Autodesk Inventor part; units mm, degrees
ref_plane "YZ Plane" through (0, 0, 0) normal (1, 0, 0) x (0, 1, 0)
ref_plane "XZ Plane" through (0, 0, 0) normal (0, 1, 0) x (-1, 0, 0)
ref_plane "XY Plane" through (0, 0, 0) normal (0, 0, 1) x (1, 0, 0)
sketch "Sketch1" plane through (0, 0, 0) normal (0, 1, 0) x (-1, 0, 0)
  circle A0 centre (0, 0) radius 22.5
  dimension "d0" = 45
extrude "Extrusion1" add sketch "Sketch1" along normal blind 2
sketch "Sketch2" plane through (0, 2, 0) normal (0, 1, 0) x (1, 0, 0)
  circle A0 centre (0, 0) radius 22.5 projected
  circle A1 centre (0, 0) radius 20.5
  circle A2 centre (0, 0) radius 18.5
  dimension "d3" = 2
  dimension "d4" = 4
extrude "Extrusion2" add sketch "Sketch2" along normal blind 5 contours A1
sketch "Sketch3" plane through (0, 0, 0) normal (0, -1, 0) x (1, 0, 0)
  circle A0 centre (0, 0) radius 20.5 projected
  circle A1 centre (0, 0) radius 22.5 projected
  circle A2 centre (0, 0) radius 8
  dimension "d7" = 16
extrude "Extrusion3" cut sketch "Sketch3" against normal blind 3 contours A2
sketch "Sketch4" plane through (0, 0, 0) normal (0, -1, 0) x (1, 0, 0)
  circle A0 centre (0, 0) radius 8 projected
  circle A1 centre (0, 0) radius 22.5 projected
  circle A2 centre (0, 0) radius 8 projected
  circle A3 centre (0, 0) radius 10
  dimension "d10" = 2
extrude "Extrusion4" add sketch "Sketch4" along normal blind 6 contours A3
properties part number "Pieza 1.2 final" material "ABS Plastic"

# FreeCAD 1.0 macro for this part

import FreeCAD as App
import Part
import Sketcher
from FreeCAD import Vector
Q = App.Units.Quantity

doc = App.newDocument("Part")
body = doc.addObject("PartDesign::Body", "Body")

# Sketch on XZ plane
sketch1 = doc.addObject("Sketcher::SketchObject", "Sketch")
body.addObject(sketch1)
sketch1.AttachmentSupport = (doc.XZ_Plane, [""])
sketch1.MapMode = "FlatFace"
sketch1.addGeometry(Part.Circle(Vector(0, 0, 0), Vector(0, 0, 1), 22.5), False)
sketch1.addConstraint([
    Sketcher.Constraint("Coincident", 0, 3, -1, 1),
    Sketcher.Constraint("Diameter", 0, Q("45 mm")),
])
pad1 = doc.addObject("PartDesign::Pad", "Pad")
body.addObject(pad1)
pad1.Profile = sketch1
pad1.Length = 2
pad1.Reversed = True

# Sketch on XZ plane
sketch2 = doc.addObject("Sketcher::SketchObject", "Sketch001")
body.addObject(sketch2)
sketch2.AttachmentSupport = (doc.XZ_Plane, [""])
sketch2.MapMode = "FlatFace"
sketch2.AttachmentOffset = App.Placement(Vector(0, 0, -2), App.Rotation())
sketch2.addGeometry([
    Part.Circle(Vector(0, 0, 0), Vector(0, 0, 1), 20.5),
    Part.Circle(Vector(0, 0, 0), Vector(0, 0, 1), 18.5),
], False)
sketch2.addConstraint([
    Sketcher.Constraint("Coincident", 0, 3, -1, 1),
    Sketcher.Constraint("Coincident", 1, 3, -1, 1),
    Sketcher.Constraint("Diameter", 0, Q("41 mm")),
    Sketcher.Constraint("Diameter", 1, Q("37 mm")),
])
pad2 = doc.addObject("PartDesign::Pad", "Pad001")
body.addObject(pad2)
pad2.Profile = sketch2
pad2.Length = 5
pad2.Reversed = True

# Sketch on XZ plane
sketch3 = doc.addObject("Sketcher::SketchObject", "Sketch002")
body.addObject(sketch3)
sketch3.AttachmentSupport = (doc.XZ_Plane, [""])
sketch3.MapMode = "FlatFace"
sketch3.addGeometry(Part.Circle(Vector(0, 0, 0), Vector(0, 0, 1), 8), False)
sketch3.addConstraint([
    Sketcher.Constraint("Coincident", 0, 3, -1, 1),
    Sketcher.Constraint("Diameter", 0, Q("16 mm")),
])
pocket1 = doc.addObject("PartDesign::Pocket", "Pocket")
body.addObject(pocket1)
pocket1.Profile = sketch3
pocket1.Length = 3

# Sketch on XZ plane
sketch4 = doc.addObject("Sketcher::SketchObject", "Sketch003")
body.addObject(sketch4)
sketch4.AttachmentSupport = (doc.XZ_Plane, [""])
sketch4.MapMode = "FlatFace"
sketch4.addGeometry([
    Part.Circle(Vector(0, 0, 0), Vector(0, 0, 1), 10),
    Part.Circle(Vector(0, 0, 0), Vector(0, 0, 1), 8),
], False)
sketch4.addConstraint([
    Sketcher.Constraint("Coincident", 0, 3, -1, 1),
    Sketcher.Constraint("Coincident", 1, 3, -1, 1),
    Sketcher.Constraint("Diameter", 0, Q("20 mm")),
    Sketcher.Constraint("Diameter", 1, Q("16 mm")),
])
pad3 = doc.addObject("PartDesign::Pad", "Pad002")
body.addObject(pad3)
pad3.Profile = sketch4
pad3.Length = 6

doc.recompute()
